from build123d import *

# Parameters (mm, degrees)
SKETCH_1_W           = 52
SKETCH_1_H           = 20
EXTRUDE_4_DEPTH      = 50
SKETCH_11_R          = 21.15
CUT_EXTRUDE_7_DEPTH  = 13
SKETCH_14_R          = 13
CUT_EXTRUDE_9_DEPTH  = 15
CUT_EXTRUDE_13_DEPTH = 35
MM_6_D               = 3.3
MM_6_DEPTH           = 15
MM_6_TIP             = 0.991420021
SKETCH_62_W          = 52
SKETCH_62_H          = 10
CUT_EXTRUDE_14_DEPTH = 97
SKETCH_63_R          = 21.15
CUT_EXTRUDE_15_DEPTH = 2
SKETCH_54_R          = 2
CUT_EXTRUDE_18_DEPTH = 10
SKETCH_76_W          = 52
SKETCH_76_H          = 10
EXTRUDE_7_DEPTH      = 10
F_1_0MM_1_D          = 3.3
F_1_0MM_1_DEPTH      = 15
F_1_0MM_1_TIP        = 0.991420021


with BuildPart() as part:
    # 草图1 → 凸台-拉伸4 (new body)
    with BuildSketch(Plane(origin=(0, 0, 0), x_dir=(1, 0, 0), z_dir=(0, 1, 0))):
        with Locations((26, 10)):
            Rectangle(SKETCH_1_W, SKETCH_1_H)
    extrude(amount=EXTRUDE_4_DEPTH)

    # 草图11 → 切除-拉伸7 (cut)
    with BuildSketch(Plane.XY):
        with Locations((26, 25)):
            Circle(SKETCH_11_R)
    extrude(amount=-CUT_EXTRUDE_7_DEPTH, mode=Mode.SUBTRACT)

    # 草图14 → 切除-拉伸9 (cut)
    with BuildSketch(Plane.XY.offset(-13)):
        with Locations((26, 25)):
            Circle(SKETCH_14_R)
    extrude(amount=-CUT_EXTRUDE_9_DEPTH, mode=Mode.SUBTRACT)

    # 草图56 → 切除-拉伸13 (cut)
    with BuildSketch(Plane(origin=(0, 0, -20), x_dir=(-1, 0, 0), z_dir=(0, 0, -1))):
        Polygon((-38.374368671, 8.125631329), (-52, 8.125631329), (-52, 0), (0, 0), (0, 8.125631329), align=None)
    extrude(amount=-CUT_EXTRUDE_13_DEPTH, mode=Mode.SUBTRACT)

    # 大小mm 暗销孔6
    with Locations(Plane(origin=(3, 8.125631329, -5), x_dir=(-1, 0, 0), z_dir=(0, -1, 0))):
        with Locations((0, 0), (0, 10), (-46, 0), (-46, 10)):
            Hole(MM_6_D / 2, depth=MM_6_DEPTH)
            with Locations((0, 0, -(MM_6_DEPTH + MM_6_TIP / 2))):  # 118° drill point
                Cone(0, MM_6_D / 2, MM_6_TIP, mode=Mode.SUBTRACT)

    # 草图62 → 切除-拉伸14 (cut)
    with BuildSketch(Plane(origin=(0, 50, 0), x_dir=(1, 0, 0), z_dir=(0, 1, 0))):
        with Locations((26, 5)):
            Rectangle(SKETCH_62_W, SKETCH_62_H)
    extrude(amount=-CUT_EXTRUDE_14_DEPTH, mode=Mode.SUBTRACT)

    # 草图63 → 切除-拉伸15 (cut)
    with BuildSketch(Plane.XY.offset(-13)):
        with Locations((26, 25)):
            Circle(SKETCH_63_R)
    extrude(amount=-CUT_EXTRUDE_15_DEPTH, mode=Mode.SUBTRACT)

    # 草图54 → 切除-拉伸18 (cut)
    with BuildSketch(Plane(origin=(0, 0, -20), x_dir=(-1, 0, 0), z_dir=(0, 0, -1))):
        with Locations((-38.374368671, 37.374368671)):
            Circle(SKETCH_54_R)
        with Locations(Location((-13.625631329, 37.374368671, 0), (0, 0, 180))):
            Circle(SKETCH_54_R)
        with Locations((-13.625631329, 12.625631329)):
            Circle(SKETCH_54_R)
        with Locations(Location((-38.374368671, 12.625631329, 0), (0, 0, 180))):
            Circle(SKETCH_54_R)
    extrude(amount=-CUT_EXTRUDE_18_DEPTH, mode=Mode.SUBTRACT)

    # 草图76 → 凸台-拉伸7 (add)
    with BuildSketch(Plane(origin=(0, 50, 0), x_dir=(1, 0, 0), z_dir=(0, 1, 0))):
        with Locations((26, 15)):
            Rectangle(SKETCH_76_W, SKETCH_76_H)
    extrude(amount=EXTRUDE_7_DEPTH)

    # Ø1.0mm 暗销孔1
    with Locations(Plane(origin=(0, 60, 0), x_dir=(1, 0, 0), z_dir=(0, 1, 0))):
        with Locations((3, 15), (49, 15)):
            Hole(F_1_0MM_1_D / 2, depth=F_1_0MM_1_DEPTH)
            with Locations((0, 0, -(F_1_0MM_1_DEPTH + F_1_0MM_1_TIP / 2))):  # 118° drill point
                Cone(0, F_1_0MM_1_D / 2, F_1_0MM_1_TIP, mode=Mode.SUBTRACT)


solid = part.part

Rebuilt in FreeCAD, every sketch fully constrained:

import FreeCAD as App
import Part
import Sketcher
from FreeCAD import Vector


def add_polygon(sketch, points):
    """Adds a closed chain of lines whose ends are joined by coincident constraints."""
    first, n = sketch.GeometryCount, len(points)
    for a, b in zip(points, points[1:] + points[:1]):
        sketch.addGeometry(Part.LineSegment(App.Vector(*a, 0), App.Vector(*b, 0)), False)
    for i in range(n):
        sketch.addConstraint(Sketcher.Constraint("Coincident", first + i, 2, first + (i + 1) % n, 1))

doc = App.newDocument("Part")
body = doc.addObject("PartDesign::Body", "Body")

sketch1 = body.newObject("Sketcher::SketchObject", "Sketch")
sketch1.AttachmentSupport = (doc.getObject("XZ_Plane"), [""])
sketch1.MapMode = "FlatFace"
add_polygon(sketch1, [(0, -20), (0, 0), (52, 0), (52, -20)])
sketch1.addConstraint(Sketcher.Constraint("Vertical", 0))
sketch1.addConstraint(Sketcher.Constraint("Horizontal", 1))
sketch1.addConstraint(Sketcher.Constraint("Vertical", 2))
sketch1.addConstraint(Sketcher.Constraint("Horizontal", 3))
sketch1.addConstraint(Sketcher.Constraint("Coincident", 0, 2, -1, 1))
sketch1.addConstraint(Sketcher.Constraint("DistanceX", 1, 1, 1, 2, 52.0))
sketch1.addConstraint(Sketcher.Constraint("DistanceY", 0, 1, 0, 2, 20.0))
pad1 = body.newObject("PartDesign::Pad", "Pad")
pad1.Profile = sketch1
pad1.Length = 50
pad1.Reversed = True

sketch2 = body.newObject("Sketcher::SketchObject", "Sketch001")
sketch2.AttachmentSupport = (doc.getObject("XY_Plane"), [""])
sketch2.MapMode = "FlatFace"
sketch2.addGeometry(Part.Circle(Vector(26, 25, 0), Vector(0, 0, 1), 21.15), False)
sketch2.addConstraint(Sketcher.Constraint("Diameter", 0, 42.3))
sketch2.addConstraint(Sketcher.Constraint("DistanceX", -1, 1, 0, 3, 26.0))
sketch2.addConstraint(Sketcher.Constraint("DistanceY", -1, 1, 0, 3, 25.0))
pocket1 = body.newObject("PartDesign::Pocket", "Pocket")
pocket1.Profile = sketch2
pocket1.Length = 13

sketch3 = body.newObject("Sketcher::SketchObject", "Sketch002")
sketch3.AttachmentSupport = (doc.getObject("XY_Plane"), [""])
sketch3.MapMode = "FlatFace"
sketch3.AttachmentOffset = App.Placement(Vector(0, 0, -13), App.Rotation())
sketch3.addGeometry(Part.Circle(Vector(26, 25, 0), Vector(0, 0, 1), 13), False)
sketch3.addConstraint(Sketcher.Constraint("Diameter", 0, 26.0))
sketch3.addConstraint(Sketcher.Constraint("DistanceX", -1, 1, 0, 3, 26.0))
sketch3.addConstraint(Sketcher.Constraint("DistanceY", -1, 1, 0, 3, 25.0))
pocket2 = body.newObject("PartDesign::Pocket", "Pocket001")
pocket2.Profile = sketch3
pocket2.Length = 15

sketch4 = body.newObject("Sketcher::SketchObject", "Sketch003")
sketch4.AttachmentSupport = (doc.getObject("XY_Plane"), [""])
sketch4.MapMode = "FlatFace"
sketch4.AttachmentOffset = App.Placement(Vector(0, 0, -20), App.Rotation())
add_polygon(sketch4, [(52, 8.125631), (52, 0), (0, 0), (0, 8.125631)])
sketch4.addConstraint(Sketcher.Constraint("Vertical", 0))
sketch4.addConstraint(Sketcher.Constraint("Horizontal", 1))
sketch4.addConstraint(Sketcher.Constraint("Vertical", 2))
sketch4.addConstraint(Sketcher.Constraint("Horizontal", 3))
sketch4.addConstraint(Sketcher.Constraint("Coincident", 1, 2, -1, 1))
sketch4.addConstraint(Sketcher.Constraint("DistanceX", 1, 2, 1, 1, 52.0))
sketch4.addConstraint(Sketcher.Constraint("DistanceY", 0, 2, 0, 1, 8.125631))
pocket3 = body.newObject("PartDesign::Pocket", "Pocket002")
pocket3.Profile = sketch4
pocket3.Length = 35
pocket3.Reversed = True

sketch5 = body.newObject("Sketcher::SketchObject", "Sketch004")
sketch5.AttachmentSupport = (doc.getObject("XZ_Plane"), [""])
sketch5.MapMode = "FlatFace"
sketch5.AttachmentOffset = App.Placement(Vector(0, 0, -8.125631), App.Rotation())
sketch5.addGeometry(Part.Circle(Vector(3, -5, 0), Vector(0, 0, 1), 1.65), False)
sketch5.addGeometry(Part.Circle(Vector(3, -15, 0), Vector(0, 0, 1), 1.65), False)
sketch5.addGeometry(Part.Circle(Vector(49, -5, 0), Vector(0, 0, 1), 1.65), False)
sketch5.addGeometry(Part.Circle(Vector(49, -15, 0), Vector(0, 0, 1), 1.65), False)
sketch5.addConstraint(Sketcher.Constraint("Equal", 0, 1))
sketch5.addConstraint(Sketcher.Constraint("Equal", 1, 2))
sketch5.addConstraint(Sketcher.Constraint("Equal", 2, 3))
sketch5.addConstraint(Sketcher.Constraint("Horizontal", 0, 3, 2, 3))
sketch5.addConstraint(Sketcher.Constraint("Horizontal", 1, 3, 3, 3))
sketch5.addConstraint(Sketcher.Constraint("Vertical", 0, 3, 1, 3))
sketch5.addConstraint(Sketcher.Constraint("Vertical", 2, 3, 3, 3))
sketch5.addConstraint(Sketcher.Constraint("Diameter", 0, 3.3))
sketch5.addConstraint(Sketcher.Constraint("DistanceX", -1, 1, 0, 3, 3.0))
sketch5.addConstraint(Sketcher.Constraint("DistanceY", 0, 3, -1, 1, 5.0))
sketch5.addConstraint(Sketcher.Constraint("DistanceY", 1, 3, -1, 1, 15.0))
sketch5.addConstraint(Sketcher.Constraint("DistanceX", -1, 1, 2, 3, 49.0))
doc.recompute()
hole = body.newObject("PartDesign::Hole", "Hole")
hole.Profile = sketch5
hole.ThreadType = "None"
hole.Diameter = 3.3
hole.DepthType = "Dimension"
hole.Depth = 15
hole.DrillPoint = "Angled"
hole.DrillPointAngle = 118

sketch6 = body.newObject("Sketcher::SketchObject", "Sketch005")
sketch6.AttachmentSupport = (doc.getObject("XZ_Plane"), [""])
sketch6.MapMode = "FlatFace"
sketch6.AttachmentOffset = App.Placement(Vector(0, 0, -50), App.Rotation())
add_polygon(sketch6, [(0, -10), (0, 0), (52, 0), (52, -10)])
sketch6.addConstraint(Sketcher.Constraint("Vertical", 0))
sketch6.addConstraint(Sketcher.Constraint("Horizontal", 1))
sketch6.addConstraint(Sketcher.Constraint("Vertical", 2))
sketch6.addConstraint(Sketcher.Constraint("Horizontal", 3))
sketch6.addConstraint(Sketcher.Constraint("Coincident", 0, 2, -1, 1))
sketch6.addConstraint(Sketcher.Constraint("DistanceX", 1, 1, 1, 2, 52.0))
sketch6.addConstraint(Sketcher.Constraint("DistanceY", 0, 1, 0, 2, 10.0))
pocket4 = body.newObject("PartDesign::Pocket", "Pocket003")
pocket4.Profile = sketch6
pocket4.Length = 97
pocket4.Reversed = True

sketch7 = body.newObject("Sketcher::SketchObject", "Sketch006")
sketch7.AttachmentSupport = (doc.getObject("XY_Plane"), [""])
sketch7.MapMode = "FlatFace"
sketch7.AttachmentOffset = App.Placement(Vector(0, 0, -13), App.Rotation())
sketch7.addGeometry(Part.Circle(Vector(26, 25, 0), Vector(0, 0, 1), 21.15), False)
sketch7.addConstraint(Sketcher.Constraint("Diameter", 0, 42.3))
sketch7.addConstraint(Sketcher.Constraint("DistanceX", -1, 1, 0, 3, 26.0))
sketch7.addConstraint(Sketcher.Constraint("DistanceY", -1, 1, 0, 3, 25.0))
pocket5 = body.newObject("PartDesign::Pocket", "Pocket004")
pocket5.Profile = sketch7
pocket5.Length = 2

sketch8 = body.newObject("Sketcher::SketchObject", "Sketch007")
sketch8.AttachmentSupport = (doc.getObject("XY_Plane"), [""])
sketch8.MapMode = "FlatFace"
sketch8.AttachmentOffset = App.Placement(Vector(0, 0, -20), App.Rotation())
sketch8.addGeometry(Part.Circle(Vector(38.374369, 37.374369, 0), Vector(0, 0, 1), 2), False)
sketch8.addGeometry(Part.Circle(Vector(13.625631, 37.374369, 0), Vector(0, 0, 1), 2), False)
sketch8.addGeometry(Part.Circle(Vector(13.625631, 12.625631, 0), Vector(0, 0, 1), 2), False)
sketch8.addGeometry(Part.Circle(Vector(38.374369, 12.625631, 0), Vector(0, 0, 1), 2), False)
sketch8.addConstraint(Sketcher.Constraint("Equal", 0, 1))
sketch8.addConstraint(Sketcher.Constraint("Equal", 1, 2))
sketch8.addConstraint(Sketcher.Constraint("Equal", 2, 3))
sketch8.addConstraint(Sketcher.Constraint("Horizontal", 0, 3, 1, 3))
sketch8.addConstraint(Sketcher.Constraint("Horizontal", 2, 3, 3, 3))
sketch8.addConstraint(Sketcher.Constraint("Vertical", 1, 3, 2, 3))
sketch8.addConstraint(Sketcher.Constraint("Vertical", 0, 3, 3, 3))
sketch8.addConstraint(Sketcher.Constraint("Diameter", 0, 4.0))
sketch8.addConstraint(Sketcher.Constraint("DistanceX", -1, 1, 0, 3, 38.374369))
sketch8.addConstraint(Sketcher.Constraint("DistanceY", -1, 1, 0, 3, 37.374369))
sketch8.addConstraint(Sketcher.Constraint("DistanceX", -1, 1, 1, 3, 13.625631))
sketch8.addConstraint(Sketcher.Constraint("DistanceY", -1, 1, 2, 3, 12.625631))
pocket6 = body.newObject("PartDesign::Pocket", "Pocket005")
pocket6.Profile = sketch8
pocket6.Length = 10
pocket6.Reversed = True

sketch9 = body.newObject("Sketcher::SketchObject", "Sketch008")
sketch9.AttachmentSupport = (doc.getObject("XZ_Plane"), [""])
sketch9.MapMode = "FlatFace"
sketch9.AttachmentOffset = App.Placement(Vector(0, 0, -50), App.Rotation())
add_polygon(sketch9, [(0, -20), (0, -10), (52, -10), (52, -20)])
sketch9.addConstraint(Sketcher.Constraint("Vertical", 0))
sketch9.addConstraint(Sketcher.Constraint("Horizontal", 1))
sketch9.addConstraint(Sketcher.Constraint("Vertical", 2))
sketch9.addConstraint(Sketcher.Constraint("Horizontal", 3))
sketch9.addConstraint(Sketcher.Constraint("PointOnObject", 0, 2, -2))
sketch9.addConstraint(Sketcher.Constraint("DistanceX", 1, 1, 1, 2, 52.0))
sketch9.addConstraint(Sketcher.Constraint("DistanceY", 0, 1, 0, 2, 10.0))
sketch9.addConstraint(Sketcher.Constraint("DistanceY", 0, 2, -1, 1, 10.0))
pad2 = body.newObject("PartDesign::Pad", "Pad001")
pad2.Profile = sketch9
pad2.Length = 10
pad2.Reversed = True

sketch10 = body.newObject("Sketcher::SketchObject", "Sketch009")
sketch10.AttachmentSupport = (doc.getObject("XZ_Plane"), [""])
sketch10.MapMode = "FlatFace"
sketch10.AttachmentOffset = App.Placement(Vector(0, 0, -60), App.Rotation())
sketch10.addGeometry(Part.Circle(Vector(3, -15, 0), Vector(0, 0, 1), 1.65), False)
sketch10.addGeometry(Part.Circle(Vector(49, -15, 0), Vector(0, 0, 1), 1.65), False)
sketch10.addConstraint(Sketcher.Constraint("Equal", 0, 1))
sketch10.addConstraint(Sketcher.Constraint("Horizontal", 0, 3, 1, 3))
sketch10.addConstraint(Sketcher.Constraint("Diameter", 0, 3.3))
sketch10.addConstraint(Sketcher.Constraint("DistanceX", -1, 1, 0, 3, 3.0))
sketch10.addConstraint(Sketcher.Constraint("DistanceY", 0, 3, -1, 1, 15.0))
sketch10.addConstraint(Sketcher.Constraint("DistanceX", -1, 1, 1, 3, 49.0))
doc.recompute()
hole2 = body.newObject("PartDesign::Hole", "Hole001")
hole2.Profile = sketch10
hole2.ThreadType = "None"
hole2.Diameter = 3.3
hole2.DepthType = "Dimension"
hole2.Depth = 15
hole2.DrillPoint = "Angled"
hole2.DrillPointAngle = 118
hole2.Reversed = True

doc.recompute()
